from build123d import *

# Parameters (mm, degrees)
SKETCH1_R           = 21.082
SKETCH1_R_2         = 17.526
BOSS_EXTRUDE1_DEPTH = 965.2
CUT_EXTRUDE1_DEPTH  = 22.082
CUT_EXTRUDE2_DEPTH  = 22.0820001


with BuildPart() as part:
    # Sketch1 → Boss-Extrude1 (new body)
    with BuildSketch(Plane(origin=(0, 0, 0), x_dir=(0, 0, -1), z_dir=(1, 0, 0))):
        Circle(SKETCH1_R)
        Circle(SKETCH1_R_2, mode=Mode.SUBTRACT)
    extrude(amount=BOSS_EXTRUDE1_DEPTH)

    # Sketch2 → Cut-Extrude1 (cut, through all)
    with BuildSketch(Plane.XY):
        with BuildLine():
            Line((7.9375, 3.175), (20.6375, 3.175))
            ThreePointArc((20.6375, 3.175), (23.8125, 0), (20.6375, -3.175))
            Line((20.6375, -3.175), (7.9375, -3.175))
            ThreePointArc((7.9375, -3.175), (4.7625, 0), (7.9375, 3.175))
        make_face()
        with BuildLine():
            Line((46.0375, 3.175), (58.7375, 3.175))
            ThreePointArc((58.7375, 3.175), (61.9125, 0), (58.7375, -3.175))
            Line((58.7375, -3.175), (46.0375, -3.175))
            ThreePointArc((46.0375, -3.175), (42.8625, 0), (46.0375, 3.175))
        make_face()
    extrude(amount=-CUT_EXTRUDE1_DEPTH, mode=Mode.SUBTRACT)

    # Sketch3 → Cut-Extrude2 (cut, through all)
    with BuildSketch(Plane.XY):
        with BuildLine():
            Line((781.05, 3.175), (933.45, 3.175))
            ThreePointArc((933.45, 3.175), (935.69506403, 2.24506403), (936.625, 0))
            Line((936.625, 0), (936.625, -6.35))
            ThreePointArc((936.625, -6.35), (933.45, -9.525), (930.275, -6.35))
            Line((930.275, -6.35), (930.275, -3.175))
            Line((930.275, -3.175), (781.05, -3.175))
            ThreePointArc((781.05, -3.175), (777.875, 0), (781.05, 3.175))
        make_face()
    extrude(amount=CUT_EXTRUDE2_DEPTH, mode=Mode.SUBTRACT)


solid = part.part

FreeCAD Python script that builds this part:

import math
import FreeCAD as App
import Part
import Sketcher

V = App.Vector
Q = App.Units.Quantity

doc = App.newDocument("Part")
body = doc.addObject("PartDesign::Body", "Body")

sketch1 = body.newObject("Sketcher::SketchObject", "Sketch")
sketch1.AttachmentSupport = (doc.getObject("YZ_Plane"), [""])
sketch1.MapMode = "FlatFace"
sketch1.addGeometry([
    Part.Circle(V(0, 0, 0), V(0, 0, 1), 21),
    Part.Circle(V(0, 0, 0), V(0, 0, 1), 18),
], False)
sketch1.addConstraint([
    Sketcher.Constraint("Coincident", 0, 3, -1, 1),
    Sketcher.Constraint("Coincident", 1, 3, -1, 1),
    Sketcher.Constraint("Diameter", 0, Q("1.66 in")),
    Sketcher.Constraint("Diameter", 1, Q("1.38 in")),
])
pad1 = body.newObject("PartDesign::Pad", "Pad")
pad1.Profile = sketch1
pad1.Length = Q("38 in")

sketch2 = body.newObject("Sketcher::SketchObject", "Sketch001")
sketch2.AttachmentSupport = (doc.getObject("XY_Plane"), [""])
sketch2.MapMode = "FlatFace"
sketch2.addGeometry([
    Part.LineSegment(V(20.6, 3.2, 0), V(7.9, 3.2, 0)),
    Part.ArcOfCircle(Part.Circle(V(7.9, 0, 0), V(0, 0, 1), 3.2), math.radians(90), math.radians(270)),
    Part.LineSegment(V(7.9, -3.2, 0), V(20.6, -3.2, 0)),
    Part.ArcOfCircle(Part.Circle(V(20.6, 0, 0), V(0, 0, 1), 3.2), math.radians(-90), math.radians(90)),
    Part.LineSegment(V(58.7, 3.2, 0), V(46, 3.2, 0)),
    Part.ArcOfCircle(Part.Circle(V(46, 0, 0), V(0, 0, 1), 3.2), math.radians(90), math.radians(270)),
    Part.LineSegment(V(46, -3.2, 0), V(58.7, -3.2, 0)),
    Part.ArcOfCircle(Part.Circle(V(58.7, 0, 0), V(0, 0, 1), 3.2), math.radians(-90), math.radians(90)),
], False)
sketch2.addConstraint([
    Sketcher.Constraint("Tangent", 0, 2, 1, 1),
    Sketcher.Constraint("Tangent", 1, 2, 2, 1),
    Sketcher.Constraint("Tangent", 2, 2, 3, 1),
    Sketcher.Constraint("Tangent", 3, 2, 0, 1),
    Sketcher.Constraint("Tangent", 4, 2, 5, 1),
    Sketcher.Constraint("Tangent", 5, 2, 6, 1),
    Sketcher.Constraint("Tangent", 6, 2, 7, 1),
    Sketcher.Constraint("Tangent", 7, 2, 4, 1),
    Sketcher.Constraint("Horizontal", 0),
    Sketcher.Constraint("Horizontal", 2),
    Sketcher.Constraint("Horizontal", 4),
    Sketcher.Constraint("Horizontal", 6),
    Sketcher.Constraint("Equal", 3, 5),
    Sketcher.Constraint("PointOnObject", 1, 3, -1),
    Sketcher.Constraint("PointOnObject", 5, 3, -1),
    Sketcher.Constraint("Equal", 2, 4),
    Sketcher.Constraint("DistanceX", 0, 2, 0, 1, Q("0.5 in")),
    Sketcher.Constraint("Radius", 1, Q("0.125 in")),
    Sketcher.Constraint("DistanceX", 3, 3, 5, 3, Q("1 in")),
    Sketcher.Constraint("DistanceX", -1, 1, 1, 3, Q("0.3125 in")),
])
pocket1 = body.newObject("PartDesign::Pocket", "Pocket")
pocket1.Profile = sketch2
pocket1.Type = "ThroughAll"

sketch3 = body.newObject("Sketcher::SketchObject", "Sketch002")
sketch3.AttachmentSupport = (doc.getObject("XY_Plane"), [""])
sketch3.MapMode = "FlatFace"
sketch3.addGeometry([
    Part.LineSegment(V(933.5, 3.2, 0), V(781, 3.2, 0)),
    Part.ArcOfCircle(Part.Circle(V(781, 0, 0), V(0, 0, 1), 3.2), math.radians(90), math.radians(270)),
    Part.LineSegment(V(781, -3.2, 0), V(930.3, -3.2, 0)),
    Part.LineSegment(V(930.3, -3.2, 0), V(930.3, -6.3, 0)),
    Part.ArcOfCircle(Part.Circle(V(933.5, -6.3, 0), V(0, 0, 1), 3.2), math.radians(180), math.radians(360)),
    Part.LineSegment(V(936.6, -6.3, 0), V(936.6, 0, 0)),
    Part.ArcOfCircle(Part.Circle(V(933.4, 0, 0), V(0, 0, 1), 3.2), math.radians(0), math.radians(90)),
], False)
sketch3.addConstraint([
    Sketcher.Constraint("Tangent", 0, 2, 1, 1),
    Sketcher.Constraint("Tangent", 1, 2, 2, 1),
    Sketcher.Constraint("Coincident", 2, 2, 3, 1),
    Sketcher.Constraint("Tangent", 3, 2, 4, 1),
    Sketcher.Constraint("Tangent", 4, 2, 5, 1),
    Sketcher.Constraint("Tangent", 5, 2, 6, 1),
    Sketcher.Constraint("Tangent", 6, 2, 0, 1),
    Sketcher.Constraint("Horizontal", 0),
    Sketcher.Constraint("Horizontal", 2),
    Sketcher.Constraint("Vertical", 3),
    Sketcher.Constraint("Vertical", 5),
    Sketcher.Constraint("Equal", 1, 4),
    Sketcher.Constraint("Equal", 4, 6),
    Sketcher.Constraint("PointOnObject", 1, 3, -1),
    Sketcher.Constraint("DistanceX", 0, 2, 0, 1, Q("6 in")),
    Sketcher.Constraint("Radius", 1, Q("0.125 in")),
    Sketcher.Constraint("DistanceY", 5, 1, 5, 2, Q("0.25 in")),
    Sketcher.Constraint("DistanceX", -1, 1, 1, 3, Q("30.75 in")),
])
pocket2 = body.newObject("PartDesign::Pocket", "Pocket001")
pocket2.Profile = sketch3
pocket2.Type = "ThroughAll"
pocket2.Reversed = True

doc.recompute()
